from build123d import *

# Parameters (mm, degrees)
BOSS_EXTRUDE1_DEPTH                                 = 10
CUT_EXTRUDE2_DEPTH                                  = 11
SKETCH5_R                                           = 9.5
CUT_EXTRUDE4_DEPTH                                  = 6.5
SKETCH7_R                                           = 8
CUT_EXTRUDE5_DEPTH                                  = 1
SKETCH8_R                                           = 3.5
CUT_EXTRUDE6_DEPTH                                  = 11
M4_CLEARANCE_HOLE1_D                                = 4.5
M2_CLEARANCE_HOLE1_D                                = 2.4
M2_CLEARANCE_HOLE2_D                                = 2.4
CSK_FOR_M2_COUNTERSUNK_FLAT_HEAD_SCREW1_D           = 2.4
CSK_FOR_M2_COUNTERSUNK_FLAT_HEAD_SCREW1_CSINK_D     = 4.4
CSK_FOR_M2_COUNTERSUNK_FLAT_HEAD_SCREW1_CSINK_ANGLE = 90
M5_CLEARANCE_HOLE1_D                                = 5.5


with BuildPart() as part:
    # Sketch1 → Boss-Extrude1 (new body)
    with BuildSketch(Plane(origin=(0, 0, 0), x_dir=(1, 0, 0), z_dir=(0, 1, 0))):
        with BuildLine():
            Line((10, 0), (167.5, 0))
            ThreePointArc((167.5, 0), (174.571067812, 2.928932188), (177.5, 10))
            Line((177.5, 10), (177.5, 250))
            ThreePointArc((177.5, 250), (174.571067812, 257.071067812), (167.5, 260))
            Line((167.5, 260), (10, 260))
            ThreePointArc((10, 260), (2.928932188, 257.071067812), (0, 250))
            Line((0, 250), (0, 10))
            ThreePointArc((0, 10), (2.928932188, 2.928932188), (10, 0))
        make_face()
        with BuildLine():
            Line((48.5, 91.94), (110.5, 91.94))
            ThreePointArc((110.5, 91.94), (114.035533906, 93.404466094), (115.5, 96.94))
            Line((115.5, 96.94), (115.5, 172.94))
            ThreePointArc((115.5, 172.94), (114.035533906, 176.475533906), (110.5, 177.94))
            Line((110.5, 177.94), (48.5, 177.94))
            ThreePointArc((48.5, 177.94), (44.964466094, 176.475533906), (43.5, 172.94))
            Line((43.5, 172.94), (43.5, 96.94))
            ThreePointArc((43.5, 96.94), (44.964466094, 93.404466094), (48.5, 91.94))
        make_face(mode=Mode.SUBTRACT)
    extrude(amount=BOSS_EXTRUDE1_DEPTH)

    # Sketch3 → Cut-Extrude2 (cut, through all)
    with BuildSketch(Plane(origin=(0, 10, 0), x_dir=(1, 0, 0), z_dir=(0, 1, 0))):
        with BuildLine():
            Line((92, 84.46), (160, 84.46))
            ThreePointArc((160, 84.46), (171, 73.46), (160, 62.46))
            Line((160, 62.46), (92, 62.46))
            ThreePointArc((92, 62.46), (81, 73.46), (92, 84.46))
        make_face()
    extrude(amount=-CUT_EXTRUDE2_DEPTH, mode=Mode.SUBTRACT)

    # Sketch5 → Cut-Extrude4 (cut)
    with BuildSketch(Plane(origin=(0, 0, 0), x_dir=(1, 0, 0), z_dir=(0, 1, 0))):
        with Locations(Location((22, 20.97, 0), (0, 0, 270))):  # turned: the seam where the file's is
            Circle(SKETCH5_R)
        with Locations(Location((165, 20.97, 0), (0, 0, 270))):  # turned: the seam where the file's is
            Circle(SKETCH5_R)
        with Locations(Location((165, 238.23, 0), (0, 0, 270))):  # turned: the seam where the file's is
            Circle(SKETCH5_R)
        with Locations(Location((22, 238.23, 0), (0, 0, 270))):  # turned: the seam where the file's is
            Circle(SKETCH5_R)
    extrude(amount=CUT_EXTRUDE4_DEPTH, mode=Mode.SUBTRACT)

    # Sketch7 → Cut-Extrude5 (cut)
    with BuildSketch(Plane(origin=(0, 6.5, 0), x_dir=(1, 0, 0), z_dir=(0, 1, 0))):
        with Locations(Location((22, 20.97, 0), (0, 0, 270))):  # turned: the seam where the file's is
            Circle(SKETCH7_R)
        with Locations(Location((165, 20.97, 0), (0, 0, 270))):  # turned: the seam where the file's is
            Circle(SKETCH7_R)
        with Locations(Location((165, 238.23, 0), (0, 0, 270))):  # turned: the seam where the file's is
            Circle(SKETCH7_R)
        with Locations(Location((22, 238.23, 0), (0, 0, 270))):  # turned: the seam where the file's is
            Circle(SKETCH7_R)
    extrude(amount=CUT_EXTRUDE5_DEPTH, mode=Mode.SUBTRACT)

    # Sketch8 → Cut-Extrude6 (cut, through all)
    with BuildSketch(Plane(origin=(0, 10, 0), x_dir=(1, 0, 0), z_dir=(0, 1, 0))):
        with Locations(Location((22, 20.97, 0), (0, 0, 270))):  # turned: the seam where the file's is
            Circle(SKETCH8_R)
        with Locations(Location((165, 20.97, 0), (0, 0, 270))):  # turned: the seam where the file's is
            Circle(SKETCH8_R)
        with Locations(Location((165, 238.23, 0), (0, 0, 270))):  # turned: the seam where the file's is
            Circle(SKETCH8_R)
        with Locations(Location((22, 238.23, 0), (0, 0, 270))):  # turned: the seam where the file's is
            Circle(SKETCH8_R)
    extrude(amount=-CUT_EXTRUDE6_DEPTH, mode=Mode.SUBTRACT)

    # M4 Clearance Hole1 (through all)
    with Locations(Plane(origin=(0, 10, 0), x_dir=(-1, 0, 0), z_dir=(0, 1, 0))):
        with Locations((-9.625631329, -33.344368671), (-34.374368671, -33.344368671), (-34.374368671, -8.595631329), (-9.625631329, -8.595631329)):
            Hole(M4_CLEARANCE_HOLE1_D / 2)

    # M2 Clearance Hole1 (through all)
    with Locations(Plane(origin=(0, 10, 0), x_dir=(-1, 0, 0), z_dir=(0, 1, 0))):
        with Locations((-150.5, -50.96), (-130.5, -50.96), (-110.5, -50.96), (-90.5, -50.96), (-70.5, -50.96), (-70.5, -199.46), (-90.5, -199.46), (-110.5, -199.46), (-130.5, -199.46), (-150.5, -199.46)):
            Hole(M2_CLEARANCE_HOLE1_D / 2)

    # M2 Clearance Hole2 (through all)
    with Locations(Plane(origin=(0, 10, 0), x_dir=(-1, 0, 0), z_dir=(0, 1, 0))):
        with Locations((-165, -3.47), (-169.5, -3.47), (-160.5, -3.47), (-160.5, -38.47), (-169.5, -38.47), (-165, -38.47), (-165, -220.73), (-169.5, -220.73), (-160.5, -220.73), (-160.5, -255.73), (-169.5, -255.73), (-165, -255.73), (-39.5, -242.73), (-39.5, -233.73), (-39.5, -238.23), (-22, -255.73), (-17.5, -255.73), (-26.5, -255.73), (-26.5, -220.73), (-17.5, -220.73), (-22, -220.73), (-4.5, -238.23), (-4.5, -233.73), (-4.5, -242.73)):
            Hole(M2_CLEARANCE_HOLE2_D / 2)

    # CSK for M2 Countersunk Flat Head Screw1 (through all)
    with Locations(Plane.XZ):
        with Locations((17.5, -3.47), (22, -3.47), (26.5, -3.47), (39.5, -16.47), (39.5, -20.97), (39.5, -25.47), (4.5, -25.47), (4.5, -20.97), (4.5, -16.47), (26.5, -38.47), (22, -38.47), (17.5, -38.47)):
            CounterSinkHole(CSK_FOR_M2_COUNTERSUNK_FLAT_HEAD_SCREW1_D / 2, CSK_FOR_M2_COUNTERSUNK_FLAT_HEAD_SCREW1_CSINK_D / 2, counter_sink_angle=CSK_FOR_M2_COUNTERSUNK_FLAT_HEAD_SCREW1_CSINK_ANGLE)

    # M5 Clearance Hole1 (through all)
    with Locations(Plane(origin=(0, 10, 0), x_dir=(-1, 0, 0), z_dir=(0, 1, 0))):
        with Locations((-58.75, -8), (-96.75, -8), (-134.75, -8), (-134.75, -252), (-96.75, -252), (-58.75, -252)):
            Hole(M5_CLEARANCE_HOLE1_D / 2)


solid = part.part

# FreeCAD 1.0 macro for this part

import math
import FreeCAD as App
import Part
import Sketcher

V = App.Vector

doc = App.newDocument("Part")
params = doc.addObject("Spreadsheet::Sheet", "Params")
for row, (alias, value) in enumerate([
    ("sketch1_radius", "10 mm"),
    ("sketch1_radius2", "5 mm"),
    ("sketch1_width", "62 mm"),
    ("sketch1_height", "240 mm"),
    ("sketch1_height2", "76 mm"),
    ("pad1_length", "10 mm"),
    ("sketch2_radius", "11 mm"),
    ("sketch2_width", "68 mm"),
    ("sketch3_diameter", "19 mm"),
    ("pocket2_length", "6.5 mm"),
    ("sketch4_diameter", "16 mm"),
    ("pocket3_length", "1 mm"),
    ("sketch5_diameter", "7 mm"),
    ("sketch6_diameter", "4.5 mm"),
    ("hole_diameter", "4.5 mm"),
    ("sketch7_diameter", "2.4 mm"),
    ("hole2_diameter", "2.4 mm"),
    ("sketch8_diameter", "2.4 mm"),
    ("hole3_diameter", "2.4 mm"),
    ("sketch9_diameter", "2.4 mm"),
    ("hole4_diameter", "2.4 mm"),
    ("hole4_csink_diameter", "4.4 mm"),
    ("sketch10_diameter", "5.5 mm"),
    ("hole5_diameter", "5.5 mm"),
], start=1):
    params.set(f"A{row}", alias)
    params.set(f"B{row}", "=" + value)
    params.setAlias(f"B{row}", alias)

body = doc.addObject("PartDesign::Body", "Body")

# Sketch on XZ plane
sketch1 = body.newObject("Sketcher::SketchObject", "Sketch")
sketch1.AttachmentSupport = (doc.getObject("XZ_Plane"), [""])
sketch1.MapMode = "FlatFace"
sketch1.addGeometry(Part.LineSegment(V(10, 0, 0), V(167.5, 0, 0)), False)
sketch1.addGeometry(Part.ArcOfCircle(Part.Circle(V(167.5, -10, 0), V(0, 0, 1), 10), math.radians(0), math.radians(90)), False)
sketch1.addGeometry(Part.LineSegment(V(177.5, -10, 0), V(177.5, -250, 0)), False)
sketch1.addGeometry(Part.ArcOfCircle(Part.Circle(V(167.5, -250, 0), V(0, 0, 1), 10), math.radians(-90), math.radians(0)), False)
sketch1.addGeometry(Part.LineSegment(V(167.5, -260, 0), V(10, -260, 0)), False)
sketch1.addGeometry(Part.ArcOfCircle(Part.Circle(V(10, -250, 0), V(0, 0, 1), 10), math.radians(180), math.radians(270)), False)
sketch1.addGeometry(Part.LineSegment(V(0, -250, 0), V(0, -10, 0)), False)
sketch1.addGeometry(Part.ArcOfCircle(Part.Circle(V(10, -10, 0), V(0, 0, 1), 10), math.radians(90), math.radians(180)), False)
sketch1.addGeometry(Part.LineSegment(V(110.5, -91.94, 0), V(48.5, -91.94, 0)), False)
sketch1.addGeometry(Part.ArcOfCircle(Part.Circle(V(48.5, -96.94, 0), V(0, 0, 1), 5), math.radians(90), math.radians(180)), False)
sketch1.addGeometry(Part.LineSegment(V(43.5, -96.94, 0), V(43.5, -172.94, 0)), False)
sketch1.addGeometry(Part.ArcOfCircle(Part.Circle(V(48.5, -172.94, 0), V(0, 0, 1), 5), math.radians(180), math.radians(270)), False)
sketch1.addGeometry(Part.LineSegment(V(48.5, -177.94, 0), V(110.5, -177.94, 0)), False)
sketch1.addGeometry(Part.ArcOfCircle(Part.Circle(V(110.5, -172.94, 0), V(0, 0, 1), 5), math.radians(-90), math.radians(0)), False)
sketch1.addGeometry(Part.LineSegment(V(115.5, -172.94, 0), V(115.5, -96.94, 0)), False)
sketch1.addGeometry(Part.ArcOfCircle(Part.Circle(V(110.5, -96.94, 0), V(0, 0, 1), 5), math.radians(0), math.radians(90)), False)
sketch1.addConstraint(Sketcher.Constraint("Tangent", 0, 2, 1, 2))
sketch1.addConstraint(Sketcher.Constraint("Tangent", 1, 1, 2, 1))
sketch1.addConstraint(Sketcher.Constraint("Tangent", 2, 2, 3, 2))
sketch1.addConstraint(Sketcher.Constraint("Tangent", 3, 1, 4, 1))
sketch1.addConstraint(Sketcher.Constraint("Tangent", 4, 2, 5, 2))
sketch1.addConstraint(Sketcher.Constraint("Tangent", 5, 1, 6, 1))
sketch1.addConstraint(Sketcher.Constraint("Tangent", 6, 2, 7, 2))
sketch1.addConstraint(Sketcher.Constraint("Tangent", 7, 1, 0, 1))
sketch1.addConstraint(Sketcher.Constraint("Tangent", 8, 2, 9, 1))
sketch1.addConstraint(Sketcher.Constraint("Tangent", 9, 2, 10, 1))
sketch1.addConstraint(Sketcher.Constraint("Tangent", 10, 2, 11, 1))
sketch1.addConstraint(Sketcher.Constraint("Tangent", 11, 2, 12, 1))
sketch1.addConstraint(Sketcher.Constraint("Tangent", 12, 2, 13, 1))
sketch1.addConstraint(Sketcher.Constraint("Tangent", 13, 2, 14, 1))
sketch1.addConstraint(Sketcher.Constraint("Tangent", 14, 2, 15, 1))
sketch1.addConstraint(Sketcher.Constraint("Tangent", 15, 2, 8, 1))
sketch1.addConstraint(Sketcher.Constraint("Horizontal", 0))
sketch1.addConstraint(Sketcher.Constraint("Vertical", 2))
sketch1.addConstraint(Sketcher.Constraint("Horizontal", 4))
sketch1.addConstraint(Sketcher.Constraint("Vertical", 6))
sketch1.addConstraint(Sketcher.Constraint("Horizontal", 8))
sketch1.addConstraint(Sketcher.Constraint("Vertical", 10))
sketch1.addConstraint(Sketcher.Constraint("Horizontal", 12))
sketch1.addConstraint(Sketcher.Constraint("Vertical", 14))
sketch1.addConstraint(Sketcher.Constraint("Equal", 1, 3))
sketch1.addConstraint(Sketcher.Constraint("Equal", 3, 5))
sketch1.addConstraint(Sketcher.Constraint("Equal", 5, 7))
sketch1.addConstraint(Sketcher.Constraint("Equal", 9, 11))
sketch1.addConstraint(Sketcher.Constraint("Equal", 11, 13))
sketch1.addConstraint(Sketcher.Constraint("Equal", 13, 15))
sketch1.addConstraint(Sketcher.Constraint("PointOnObject", 0, 2, -1))
sketch1.addConstraint(Sketcher.Constraint("PointOnObject", 5, 1, -2))
sketch1.addConstraint(Sketcher.Constraint("Radius", 1, 10.0))
sketch1.addConstraint(Sketcher.Constraint("Radius", 9, 5.0))
sketch1.addConstraint(Sketcher.Constraint("DistanceX", 8, 2, 8, 1, 62.0))
sketch1.addConstraint(Sketcher.Constraint("DistanceY", 2, 2, 2, 1, 240.0))
sketch1.addConstraint(Sketcher.Constraint("DistanceY", 10, 2, 10, 1, 76.0))
sketch1.addConstraint(Sketcher.Constraint("DistanceX", 0, 1, 0, 2, 157.5))
sketch1.addConstraint(Sketcher.Constraint("DistanceX", 9, 3, 1, 3, 119.0))
sketch1.addConstraint(Sketcher.Constraint("DistanceY", 9, 3, -1, 1, 96.94))
sketch1.setExpression("Constraints[32]", "Params.sketch1_radius")
sketch1.setExpression("Constraints[33]", "Params.sketch1_radius2")
sketch1.setExpression("Constraints[34]", "Params.sketch1_width")
sketch1.setExpression("Constraints[35]", "Params.sketch1_height")
sketch1.setExpression("Constraints[36]", "Params.sketch1_height2")
pad1 = body.newObject("PartDesign::Pad", "Pad")
pad1.Profile = sketch1
pad1.setExpression("Length", "Params.pad1_length")
pad1.Reversed = True

# Sketch on XZ plane
sketch2 = body.newObject("Sketcher::SketchObject", "Sketch001")
sketch2.AttachmentSupport = (doc.getObject("XZ_Plane"), [""])
sketch2.MapMode = "FlatFace"
sketch2.AttachmentOffset = App.Placement(V(0, 0, -10), App.Rotation())
sketch2.addGeometry(Part.LineSegment(V(160, -84.46, 0), V(92, -84.46, 0)), False)
sketch2.addGeometry(Part.ArcOfCircle(Part.Circle(V(92, -73.46, 0), V(0, 0, 1), 11), math.radians(90), math.radians(270)), False)
sketch2.addGeometry(Part.LineSegment(V(92, -62.46, 0), V(160, -62.46, 0)), False)
sketch2.addGeometry(Part.ArcOfCircle(Part.Circle(V(160, -73.46, 0), V(0, 0, 1), 11), math.radians(-90), math.radians(90)), False)
sketch2.addConstraint(Sketcher.Constraint("Tangent", 0, 2, 1, 2))
sketch2.addConstraint(Sketcher.Constraint("Tangent", 1, 1, 2, 1))
sketch2.addConstraint(Sketcher.Constraint("Tangent", 2, 2, 3, 2))
sketch2.addConstraint(Sketcher.Constraint("Tangent", 3, 1, 0, 1))
sketch2.addConstraint(Sketcher.Constraint("Horizontal", 0))
sketch2.addConstraint(Sketcher.Constraint("Horizontal", 2))
sketch2.addConstraint(Sketcher.Constraint("Radius", 1, 11.0))
sketch2.addConstraint(Sketcher.Constraint("DistanceX", 0, 2, 0, 1, 68.0))
sketch2.addConstraint(Sketcher.Constraint("DistanceX", -1, 1, 1, 3, 92.0))
sketch2.addConstraint(Sketcher.Constraint("DistanceY", 1, 3, -1, 1, 73.46))
sketch2.setExpression("Constraints[6]", "Params.sketch2_radius")
sketch2.setExpression("Constraints[7]", "Params.sketch2_width")
pocket1 = body.newObject("PartDesign::Pocket", "Pocket")
pocket1.Profile = sketch2
pocket1.Type = "ThroughAll"
pocket1.Reversed = True

# Sketch on XZ plane
sketch3 = body.newObject("Sketcher::SketchObject", "Sketch002")
sketch3.AttachmentSupport = (doc.getObject("XZ_Plane"), [""])
sketch3.MapMode = "FlatFace"
sketch3.addGeometry(Part.Circle(V(22, -20.97, 0), V(0, 0, 1), 9.5), False)
sketch3.addGeometry(Part.Circle(V(165, -20.97, 0), V(0, 0, 1), 9.5), False)
sketch3.addGeometry(Part.Circle(V(165, -238.23, 0), V(0, 0, 1), 9.5), False)
sketch3.addGeometry(Part.Circle(V(22, -238.23, 0), V(0, 0, 1), 9.5), False)
sketch3.addConstraint(Sketcher.Constraint("Equal", 0, 1))
sketch3.addConstraint(Sketcher.Constraint("Equal", 1, 2))
sketch3.addConstraint(Sketcher.Constraint("Equal", 2, 3))
sketch3.addConstraint(Sketcher.Constraint("Horizontal", 0, 3, 1, 3))
sketch3.addConstraint(Sketcher.Constraint("Horizontal", 2, 3, 3, 3))
sketch3.addConstraint(Sketcher.Constraint("Vertical", 1, 3, 2, 3))
sketch3.addConstraint(Sketcher.Constraint("Vertical", 0, 3, 3, 3))
sketch3.addConstraint(Sketcher.Constraint("Diameter", 0, 19.0))
sketch3.addConstraint(Sketcher.Constraint("DistanceX", -1, 1, 0, 3, 22.0))
sketch3.addConstraint(Sketcher.Constraint("DistanceX", -1, 1, 1, 3, 165.0))
sketch3.addConstraint(Sketcher.Constraint("DistanceY", 0, 3, -1, 1, 20.97))
sketch3.addConstraint(Sketcher.Constraint("DistanceY", 2, 3, -1, 1, 238.23))
sketch3.setExpression("Constraints[7]", "Params.sketch3_diameter")
pocket2 = body.newObject("PartDesign::Pocket", "Pocket001")
pocket2.Profile = sketch3
pocket2.setExpression("Length", "Params.pocket2_length")

# Sketch on XZ plane
sketch4 = body.newObject("Sketcher::SketchObject", "Sketch003")
sketch4.AttachmentSupport = (doc.getObject("XZ_Plane"), [""])
sketch4.MapMode = "FlatFace"
sketch4.AttachmentOffset = App.Placement(V(0, 0, -6.5), App.Rotation())
sketch4.addGeometry(Part.Circle(V(22, -20.97, 0), V(0, 0, 1), 8), False)
sketch4.addGeometry(Part.Circle(V(165, -20.97, 0), V(0, 0, 1), 8), False)
sketch4.addGeometry(Part.Circle(V(165, -238.23, 0), V(0, 0, 1), 8), False)
sketch4.addGeometry(Part.Circle(V(22, -238.23, 0), V(0, 0, 1), 8), False)
sketch4.addConstraint(Sketcher.Constraint("Equal", 0, 1))
sketch4.addConstraint(Sketcher.Constraint("Equal", 1, 2))
sketch4.addConstraint(Sketcher.Constraint("Equal", 2, 3))
sketch4.addConstraint(Sketcher.Constraint("Horizontal", 0, 3, 1, 3))
sketch4.addConstraint(Sketcher.Constraint("Horizontal", 2, 3, 3, 3))
sketch4.addConstraint(Sketcher.Constraint("Vertical", 1, 3, 2, 3))
sketch4.addConstraint(Sketcher.Constraint("Vertical", 0, 3, 3, 3))
sketch4.addConstraint(Sketcher.Constraint("Diameter", 0, 16.0))
sketch4.addConstraint(Sketcher.Constraint("DistanceX", -1, 1, 0, 3, 22.0))
sketch4.addConstraint(Sketcher.Constraint("DistanceX", -1, 1, 1, 3, 165.0))
sketch4.addConstraint(Sketcher.Constraint("DistanceY", 0, 3, -1, 1, 20.97))
sketch4.addConstraint(Sketcher.Constraint("DistanceY", 2, 3, -1, 1, 238.23))
sketch4.setExpression("Constraints[7]", "Params.sketch4_diameter")
pocket3 = body.newObject("PartDesign::Pocket", "Pocket002")
pocket3.Profile = sketch4
pocket3.setExpression("Length", "Params.pocket3_length")

# Sketch on XZ plane
sketch5 = body.newObject("Sketcher::SketchObject", "Sketch004")
sketch5.AttachmentSupport = (doc.getObject("XZ_Plane"), [""])
sketch5.MapMode = "FlatFace"
sketch5.AttachmentOffset = App.Placement(V(0, 0, -10), App.Rotation())
sketch5.addGeometry(Part.Circle(V(22, -20.97, 0), V(0, 0, 1), 3.5), False)
sketch5.addGeometry(Part.Circle(V(165, -20.97, 0), V(0, 0, 1), 3.5), False)
sketch5.addGeometry(Part.Circle(V(165, -238.23, 0), V(0, 0, 1), 3.5), False)
sketch5.addGeometry(Part.Circle(V(22, -238.23, 0), V(0, 0, 1), 3.5), False)
sketch5.addConstraint(Sketcher.Constraint("Equal", 0, 1))
sketch5.addConstraint(Sketcher.Constraint("Equal", 1, 2))
sketch5.addConstraint(Sketcher.Constraint("Equal", 2, 3))
sketch5.addConstraint(Sketcher.Constraint("Horizontal", 0, 3, 1, 3))
sketch5.addConstraint(Sketcher.Constraint("Horizontal", 2, 3, 3, 3))
sketch5.addConstraint(Sketcher.Constraint("Vertical", 1, 3, 2, 3))
sketch5.addConstraint(Sketcher.Constraint("Vertical", 0, 3, 3, 3))
sketch5.addConstraint(Sketcher.Constraint("Diameter", 0, 7.0))
sketch5.addConstraint(Sketcher.Constraint("DistanceX", -1, 1, 0, 3, 22.0))
sketch5.addConstraint(Sketcher.Constraint("DistanceX", -1, 1, 1, 3, 165.0))
sketch5.addConstraint(Sketcher.Constraint("DistanceY", 0, 3, -1, 1, 20.97))
sketch5.addConstraint(Sketcher.Constraint("DistanceY", 2, 3, -1, 1, 238.23))
sketch5.setExpression("Constraints[7]", "Params.sketch5_diameter")
pocket4 = body.newObject("PartDesign::Pocket", "Pocket003")
pocket4.Profile = sketch5
pocket4.Type = "ThroughAll"
pocket4.Reversed = True

# Sketch on XZ plane
sketch6 = body.newObject("Sketcher::SketchObject", "Sketch005")
sketch6.AttachmentSupport = (doc.getObject("XZ_Plane"), [""])
sketch6.MapMode = "FlatFace"
sketch6.AttachmentOffset = App.Placement(V(0, 0, -10), App.Rotation())
sketch6.addGeometry(Part.Circle(V(9.625631, -33.344369, 0), V(0, 0, 1), 2.25), False)
sketch6.addGeometry(Part.Circle(V(34.374369, -33.344369, 0), V(0, 0, 1), 2.25), False)
sketch6.addGeometry(Part.Circle(V(34.374369, -8.595631, 0), V(0, 0, 1), 2.25), False)
sketch6.addGeometry(Part.Circle(V(9.625631, -8.595631, 0), V(0, 0, 1), 2.25), False)
sketch6.addConstraint(Sketcher.Constraint("Equal", 0, 1))
sketch6.addConstraint(Sketcher.Constraint("Equal", 1, 2))
sketch6.addConstraint(Sketcher.Constraint("Equal", 2, 3))
sketch6.addConstraint(Sketcher.Constraint("Horizontal", 0, 3, 1, 3))
sketch6.addConstraint(Sketcher.Constraint("Horizontal", 2, 3, 3, 3))
sketch6.addConstraint(Sketcher.Constraint("Vertical", 1, 3, 2, 3))
sketch6.addConstraint(Sketcher.Constraint("Vertical", 0, 3, 3, 3))
sketch6.addConstraint(Sketcher.Constraint("Diameter", 0, 4.5))
sketch6.addConstraint(Sketcher.Constraint("DistanceX", -1, 1, 0, 3, 9.625631))
sketch6.addConstraint(Sketcher.Constraint("DistanceY", 0, 3, -1, 1, 33.344369))
sketch6.addConstraint(Sketcher.Constraint("DistanceX", -1, 1, 1, 3, 34.374369))
sketch6.addConstraint(Sketcher.Constraint("DistanceY", 2, 3, -1, 1, 8.595631))
sketch6.setExpression("Constraints[7]", "Params.sketch6_diameter")
doc.recompute()
hole = body.newObject("PartDesign::Hole", "Hole")
hole.Profile = sketch6
hole.ThreadType = "None"
hole.setExpression("Diameter", "Params.hole_diameter")
hole.DepthType = "ThroughAll"
hole.Reversed = True

# Sketch on XZ plane
sketch7 = body.newObject("Sketcher::SketchObject", "Sketch006")
sketch7.AttachmentSupport = (doc.getObject("XZ_Plane"), [""])
sketch7.MapMode = "FlatFace"
sketch7.AttachmentOffset = App.Placement(V(0, 0, -10), App.Rotation())
sketch7.addGeometry(Part.Circle(V(150.5, -50.96, 0), V(0, 0, 1), 1.2), False)
sketch7.addGeometry(Part.Circle(V(130.5, -50.96, 0), V(0, 0, 1), 1.2), False)
sketch7.addGeometry(Part.Circle(V(110.5, -50.96, 0), V(0, 0, 1), 1.2), False)
sketch7.addGeometry(Part.Circle(V(90.5, -50.96, 0), V(0, 0, 1), 1.2), False)
sketch7.addGeometry(Part.Circle(V(70.5, -50.96, 0), V(0, 0, 1), 1.2), False)
sketch7.addGeometry(Part.Circle(V(70.5, -199.46, 0), V(0, 0, 1), 1.2), False)
sketch7.addGeometry(Part.Circle(V(90.5, -199.46, 0), V(0, 0, 1), 1.2), False)
sketch7.addGeometry(Part.Circle(V(110.5, -199.46, 0), V(0, 0, 1), 1.2), False)
sketch7.addGeometry(Part.Circle(V(130.5, -199.46, 0), V(0, 0, 1), 1.2), False)
sketch7.addGeometry(Part.Circle(V(150.5, -199.46, 0), V(0, 0, 1), 1.2), False)
sketch7.addConstraint(Sketcher.Constraint("Equal", 0, 1))
sketch7.addConstraint(Sketcher.Constraint("Equal", 1, 2))
sketch7.addConstraint(Sketcher.Constraint("Equal", 2, 3))
sketch7.addConstraint(Sketcher.Constraint("Equal", 3, 4))
sketch7.addConstraint(Sketcher.Constraint("Equal", 4, 5))
sketch7.addConstraint(Sketcher.Constraint("Equal", 5, 6))
sketch7.addConstraint(Sketcher.Constraint("Equal", 6, 7))
sketch7.addConstraint(Sketcher.Constraint("Equal", 7, 8))
sketch7.addConstraint(Sketcher.Constraint("Equal", 8, 9))
sketch7.addConstraint(Sketcher.Constraint("Horizontal", 0, 3, 1, 3))
sketch7.addConstraint(Sketcher.Constraint("Horizontal", 1, 3, 2, 3))
sketch7.addConstraint(Sketcher.Constraint("Horizontal", 2, 3, 3, 3))
sketch7.addConstraint(Sketcher.Constraint("Horizontal", 3, 3, 4, 3))
sketch7.addConstraint(Sketcher.Constraint("Horizontal", 5, 3, 6, 3))
sketch7.addConstraint(Sketcher.Constraint("Horizontal", 6, 3, 7, 3))
sketch7.addConstraint(Sketcher.Constraint("Horizontal", 7, 3, 8, 3))
sketch7.addConstraint(Sketcher.Constraint("Horizontal", 8, 3, 9, 3))
sketch7.addConstraint(Sketcher.Constraint("Vertical", 4, 3, 5, 3))
sketch7.addConstraint(Sketcher.Constraint("Vertical", 3, 3, 6, 3))
sketch7.addConstraint(Sketcher.Constraint("Vertical", 2, 3, 7, 3))
sketch7.addConstraint(Sketcher.Constraint("Vertical", 1, 3, 8, 3))
sketch7.addConstraint(Sketcher.Constraint("Vertical", 0, 3, 9, 3))
sketch7.addConstraint(Sketcher.Constraint("Diameter", 0, 2.4))
sketch7.addConstraint(Sketcher.Constraint("DistanceX", 1, 3, 0, 3, 20.0))
sketch7.addConstraint(Sketcher.Constraint("DistanceX", 2, 3, 1, 3, 20.0))
sketch7.addConstraint(Sketcher.Constraint("DistanceX", 3, 3, 2, 3, 20.0))
sketch7.addConstraint(Sketcher.Constraint("DistanceX", 4, 3, 3, 3, 20.0))
sketch7.addConstraint(Sketcher.Constraint("DistanceX", -1, 1, 0, 3, 150.5))
sketch7.addConstraint(Sketcher.Constraint("DistanceY", 5, 3, 4, 3, 148.5))
sketch7.addConstraint(Sketcher.Constraint("DistanceY", 0, 3, -1, 1, 50.96))
sketch7.setExpression("Constraints[22]", "Params.sketch7_diameter")
doc.recompute()
hole2 = body.newObject("PartDesign::Hole", "Hole001")
hole2.Profile = sketch7
hole2.ThreadType = "None"
hole2.setExpression("Diameter", "Params.hole2_diameter")
hole2.DepthType = "ThroughAll"
hole2.Reversed = True

# Sketch on XZ plane
sketch8 = body.newObject("Sketcher::SketchObject", "Sketch007")
sketch8.AttachmentSupport = (doc.getObject("XZ_Plane"), [""])
sketch8.MapMode = "FlatFace"
sketch8.AttachmentOffset = App.Placement(V(0, 0, -10), App.Rotation())
sketch8.addGeometry(Part.Circle(V(165, -3.47, 0), V(0, 0, 1), 1.2), False)
sketch8.addGeometry(Part.Circle(V(169.5, -3.47, 0), V(0, 0, 1), 1.2), False)
sketch8.addGeometry(Part.Circle(V(160.5, -3.47, 0), V(0, 0, 1), 1.2), False)
sketch8.addGeometry(Part.Circle(V(160.5, -38.47, 0), V(0, 0, 1), 1.2), False)
sketch8.addGeometry(Part.Circle(V(169.5, -38.47, 0), V(0, 0, 1), 1.2), False)
sketch8.addGeometry(Part.Circle(V(165, -38.47, 0), V(0, 0, 1), 1.2), False)
sketch8.addGeometry(Part.Circle(V(165, -220.73, 0), V(0, 0, 1), 1.2), False)
sketch8.addGeometry(Part.Circle(V(169.5, -220.73, 0), V(0, 0, 1), 1.2), False)
sketch8.addGeometry(Part.Circle(V(160.5, -220.73, 0), V(0, 0, 1), 1.2), False)
sketch8.addGeometry(Part.Circle(V(160.5, -255.73, 0), V(0, 0, 1), 1.2), False)
sketch8.addGeometry(Part.Circle(V(169.5, -255.73, 0), V(0, 0, 1), 1.2), False)
sketch8.addGeometry(Part.Circle(V(165, -255.73, 0), V(0, 0, 1), 1.2), False)
sketch8.addGeometry(Part.Circle(V(39.5, -242.73, 0), V(0, 0, 1), 1.2), False)
sketch8.addGeometry(Part.Circle(V(39.5, -233.73, 0), V(0, 0, 1), 1.2), False)
sketch8.addGeometry(Part.Circle(V(39.5, -238.23, 0), V(0, 0, 1), 1.2), False)
sketch8.addGeometry(Part.Circle(V(22, -255.73, 0), V(0, 0, 1), 1.2), False)
sketch8.addGeometry(Part.Circle(V(17.5, -255.73, 0), V(0, 0, 1), 1.2), False)
sketch8.addGeometry(Part.Circle(V(26.5, -255.73, 0), V(0, 0, 1), 1.2), False)
sketch8.addGeometry(Part.Circle(V(26.5, -220.73, 0), V(0, 0, 1), 1.2), False)
sketch8.addGeometry(Part.Circle(V(17.5, -220.73, 0), V(0, 0, 1), 1.2), False)
sketch8.addGeometry(Part.Circle(V(22, -220.73, 0), V(0, 0, 1), 1.2), False)
sketch8.addGeometry(Part.Circle(V(4.5, -238.23, 0), V(0, 0, 1), 1.2), False)
sketch8.addGeometry(Part.Circle(V(4.5, -233.73, 0), V(0, 0, 1), 1.2), False)
sketch8.addGeometry(Part.Circle(V(4.5, -242.73, 0), V(0, 0, 1), 1.2), False)
sketch8.addConstraint(Sketcher.Constraint("Equal", 0, 1))
sketch8.addConstraint(Sketcher.Constraint("Equal", 1, 2))
sketch8.addConstraint(Sketcher.Constraint("Equal", 2, 3))
sketch8.addConstraint(Sketcher.Constraint("Equal", 3, 4))
sketch8.addConstraint(Sketcher.Constraint("Equal", 4, 5))
sketch8.addConstraint(Sketcher.Constraint("Equal", 5, 6))
sketch8.addConstraint(Sketcher.Constraint("Equal", 6, 7))
sketch8.addConstraint(Sketcher.Constraint("Equal", 7, 8))
sketch8.addConstraint(Sketcher.Constraint("Equal", 8, 9))
sketch8.addConstraint(Sketcher.Constraint("Equal", 9, 10))
sketch8.addConstraint(Sketcher.Constraint("Equal", 10, 11))
sketch8.addConstraint(Sketcher.Constraint("Equal", 11, 12))
sketch8.addConstraint(Sketcher.Constraint("Equal", 12, 13))
sketch8.addConstraint(Sketcher.Constraint("Equal", 13, 14))
sketch8.addConstraint(Sketcher.Constraint("Equal", 14, 15))
sketch8.addConstraint(Sketcher.Constraint("Equal", 15, 16))
sketch8.addConstraint(Sketcher.Constraint("Equal", 16, 17))
sketch8.addConstraint(Sketcher.Constraint("Equal", 17, 18))
sketch8.addConstraint(Sketcher.Constraint("Equal", 18, 19))
sketch8.addConstraint(Sketcher.Constraint("Equal", 19, 20))
sketch8.addConstraint(Sketcher.Constraint("Equal", 20, 21))
sketch8.addConstraint(Sketcher.Constraint("Equal", 21, 22))
sketch8.addConstraint(Sketcher.Constraint("Equal", 22, 23))
sketch8.addConstraint(Sketcher.Constraint("Horizontal", 0, 3, 1, 3))
sketch8.addConstraint(Sketcher.Constraint("Horizontal", 1, 3, 2, 3))
sketch8.addConstraint(Sketcher.Constraint("Horizontal", 3, 3, 4, 3))
sketch8.addConstraint(Sketcher.Constraint("Horizontal", 4, 3, 5, 3))
sketch8.addConstraint(Sketcher.Constraint("Horizontal", 6, 3, 7, 3))
sketch8.addConstraint(Sketcher.Constraint("Horizontal", 7, 3, 8, 3))
sketch8.addConstraint(Sketcher.Constraint("Horizontal", 9, 3, 10, 3))
sketch8.addConstraint(Sketcher.Constraint("Horizontal", 10, 3, 11, 3))
sketch8.addConstraint(Sketcher.Constraint("Horizontal", 11, 3, 15, 3))
sketch8.addConstraint(Sketcher.Constraint("Horizontal", 15, 3, 16, 3))
sketch8.addConstraint(Sketcher.Constraint("Horizontal", 16, 3, 17, 3))
sketch8.addConstraint(Sketcher.Constraint("Horizontal", 8, 3, 18, 3))
sketch8.addConstraint(Sketcher.Constraint("Horizontal", 18, 3, 19, 3))
sketch8.addConstraint(Sketcher.Constraint("Horizontal", 19, 3, 20, 3))
sketch8.addConstraint(Sketcher.Constraint("Horizontal", 14, 3, 21, 3))
sketch8.addConstraint(Sketcher.Constraint("Horizontal", 13, 3, 22, 3))
sketch8.addConstraint(Sketcher.Constraint("Horizontal", 12, 3, 23, 3))
sketch8.addConstraint(Sketcher.Constraint("Vertical", 2, 3, 3, 3))
sketch8.addConstraint(Sketcher.Constraint("Vertical", 1, 3, 4, 3))
sketch8.addConstraint(Sketcher.Constraint("Vertical", 0, 3, 5, 3))
sketch8.addConstraint(Sketcher.Constraint("Vertical", 5, 3, 6, 3))
sketch8.addConstraint(Sketcher.Constraint("Vertical", 4, 3, 7, 3))
sketch8.addConstraint(Sketcher.Constraint("Vertical", 3, 3, 8, 3))
sketch8.addConstraint(Sketcher.Constraint("Vertical", 8, 3, 9, 3))
sketch8.addConstraint(Sketcher.Constraint("Vertical", 7, 3, 10, 3))
sketch8.addConstraint(Sketcher.Constraint("Vertical", 6, 3, 11, 3))
sketch8.addConstraint(Sketcher.Constraint("Vertical", 12, 3, 13, 3))
sketch8.addConstraint(Sketcher.Constraint("Vertical", 13, 3, 14, 3))
sketch8.addConstraint(Sketcher.Constraint("Vertical", 17, 3, 18, 3))
sketch8.addConstraint(Sketcher.Constraint("Vertical", 16, 3, 19, 3))
sketch8.addConstraint(Sketcher.Constraint("Vertical", 15, 3, 20, 3))
sketch8.addConstraint(Sketcher.Constraint("Vertical", 21, 3, 22, 3))
sketch8.addConstraint(Sketcher.Constraint("Vertical", 22, 3, 23, 3))
sketch8.addConstraint(Sketcher.Constraint("Diameter", 0, 2.4))
sketch8.addConstraint(Sketcher.Constraint("DistanceX", -1, 1, 0, 3, 165.0))
sketch8.addConstraint(Sketcher.Constraint("DistanceX", -1, 1, 15, 3, 22.0))
sketch8.addConstraint(Sketcher.Constraint("DistanceX", 2, 3, 1, 3, 9.0))
sketch8.addConstraint(Sketcher.Constraint("DistanceY", 3, 3, 2, 3, 35.0))
sketch8.addConstraint(Sketcher.Constraint("DistanceY", 9, 3, 8, 3, 35.0))
sketch8.addConstraint(Sketcher.Constraint("DistanceX", 12, 3, 9, 3, 121.0))
sketch8.addConstraint(Sketcher.Constraint("DistanceY", 9, 3, 12, 3, 13.0))
sketch8.addConstraint(Sketcher.Constraint("DistanceY", 12, 3, 13, 3, 9.0))
sketch8.addConstraint(Sketcher.Constraint("DistanceX", 16, 3, 12, 3, 22.0))
sketch8.addConstraint(Sketcher.Constraint("DistanceX", 16, 3, 17, 3, 9.0))
sketch8.addConstraint(Sketcher.Constraint("DistanceX", 21, 3, 16, 3, 13.0))
sketch8.addConstraint(Sketcher.Constraint("DistanceX", -1, 1, 1, 3, 169.5))
sketch8.addConstraint(Sketcher.Constraint("DistanceY", 12, 3, 14, 3, 4.5))
sketch8.addConstraint(Sketcher.Constraint("DistanceY", 0, 3, -1, 1, 3.47))
sketch8.addConstraint(Sketcher.Constraint("DistanceY", 6, 3, -1, 1, 220.73))
sketch8.setExpression("Constraints[56]", "Params.sketch8_diameter")
doc.recompute()
hole3 = body.newObject("PartDesign::Hole", "Hole002")
hole3.Profile = sketch8
hole3.ThreadType = "None"
hole3.setExpression("Diameter", "Params.hole3_diameter")
hole3.DepthType = "ThroughAll"
hole3.Reversed = True

# Sketch on XZ plane
sketch9 = body.newObject("Sketcher::SketchObject", "Sketch008")
sketch9.AttachmentSupport = (doc.getObject("XZ_Plane"), [""])
sketch9.MapMode = "FlatFace"
sketch9.addGeometry(Part.Circle(V(17.5, -3.47, 0), V(0, 0, 1), 1.2), False)
sketch9.addGeometry(Part.Circle(V(22, -3.47, 0), V(0, 0, 1), 1.2), False)
sketch9.addGeometry(Part.Circle(V(26.5, -3.47, 0), V(0, 0, 1), 1.2), False)
sketch9.addGeometry(Part.Circle(V(39.5, -16.47, 0), V(0, 0, 1), 1.2), False)
sketch9.addGeometry(Part.Circle(V(39.5, -20.97, 0), V(0, 0, 1), 1.2), False)
sketch9.addGeometry(Part.Circle(V(39.5, -25.47, 0), V(0, 0, 1), 1.2), False)
sketch9.addGeometry(Part.Circle(V(4.5, -25.47, 0), V(0, 0, 1), 1.2), False)
sketch9.addGeometry(Part.Circle(V(4.5, -20.97, 0), V(0, 0, 1), 1.2), False)
sketch9.addGeometry(Part.Circle(V(4.5, -16.47, 0), V(0, 0, 1), 1.2), False)
sketch9.addGeometry(Part.Circle(V(26.5, -38.47, 0), V(0, 0, 1), 1.2), False)
sketch9.addGeometry(Part.Circle(V(22, -38.47, 0), V(0, 0, 1), 1.2), False)
sketch9.addGeometry(Part.Circle(V(17.5, -38.47, 0), V(0, 0, 1), 1.2), False)
sketch9.addConstraint(Sketcher.Constraint("Equal", 0, 1))
sketch9.addConstraint(Sketcher.Constraint("Equal", 1, 2))
sketch9.addConstraint(Sketcher.Constraint("Equal", 2, 3))
sketch9.addConstraint(Sketcher.Constraint("Equal", 3, 4))
sketch9.addConstraint(Sketcher.Constraint("Equal", 4, 5))
sketch9.addConstraint(Sketcher.Constraint("Equal", 5, 6))
sketch9.addConstraint(Sketcher.Constraint("Equal", 6, 7))
sketch9.addConstraint(Sketcher.Constraint("Equal", 7, 8))
sketch9.addConstraint(Sketcher.Constraint("Equal", 8, 9))
sketch9.addConstraint(Sketcher.Constraint("Equal", 9, 10))
sketch9.addConstraint(Sketcher.Constraint("Equal", 10, 11))
sketch9.addConstraint(Sketcher.Constraint("Horizontal", 0, 3, 1, 3))
sketch9.addConstraint(Sketcher.Constraint("Horizontal", 1, 3, 2, 3))
sketch9.addConstraint(Sketcher.Constraint("Horizontal", 5, 3, 6, 3))
sketch9.addConstraint(Sketcher.Constraint("Horizontal", 4, 3, 7, 3))
sketch9.addConstraint(Sketcher.Constraint("Horizontal", 3, 3, 8, 3))
sketch9.addConstraint(Sketcher.Constraint("Horizontal", 9, 3, 10, 3))
sketch9.addConstraint(Sketcher.Constraint("Horizontal", 10, 3, 11, 3))
sketch9.addConstraint(Sketcher.Constraint("Vertical", 3, 3, 4, 3))
sketch9.addConstraint(Sketcher.Constraint("Vertical", 4, 3, 5, 3))
sketch9.addConstraint(Sketcher.Constraint("Vertical", 6, 3, 7, 3))
sketch9.addConstraint(Sketcher.Constraint("Vertical", 7, 3, 8, 3))
sketch9.addConstraint(Sketcher.Constraint("Vertical", 2, 3, 9, 3))
sketch9.addConstraint(Sketcher.Constraint("Vertical", 1, 3, 10, 3))
sketch9.addConstraint(Sketcher.Constraint("Vertical", 0, 3, 11, 3))
sketch9.addConstraint(Sketcher.Constraint("Diameter", 0, 2.4))
sketch9.addConstraint(Sketcher.Constraint("DistanceX", -1, 1, 1, 3, 22.0))
sketch9.addConstraint(Sketcher.Constraint("DistanceX", 0, 3, 2, 3, 9.0))
sketch9.addConstraint(Sketcher.Constraint("DistanceX", 2, 3, 3, 3, 13.0))
sketch9.addConstraint(Sketcher.Constraint("DistanceY", 3, 3, 2, 3, 13.0))
sketch9.addConstraint(Sketcher.Constraint("DistanceY", 5, 3, 3, 3, 9.0))
sketch9.addConstraint(Sketcher.Constraint("DistanceX", 6, 3, 0, 3, 13.0))
sketch9.addConstraint(Sketcher.Constraint("DistanceY", 9, 3, 5, 3, 13.0))
sketch9.addConstraint(Sketcher.Constraint("DistanceX", -1, 1, 0, 3, 17.5))
sketch9.addConstraint(Sketcher.Constraint("DistanceY", 4, 3, 3, 3, 4.5))
sketch9.addConstraint(Sketcher.Constraint("DistanceY", 0, 3, -1, 1, 3.47))
sketch9.setExpression("Constraints[25]", "Params.sketch9_diameter")
doc.recompute()
hole4 = body.newObject("PartDesign::Hole", "Hole003")
hole4.Profile = sketch9
hole4.ThreadType = "None"
hole4.setExpression("Diameter", "Params.hole4_diameter")
hole4.DepthType = "ThroughAll"
hole4.HoleCutType = "Countersink"
hole4.setExpression("HoleCutDiameter", "Params.hole4_csink_diameter")
hole4.HoleCutCountersinkAngle = 90

# Sketch on XZ plane
sketch10 = body.newObject("Sketcher::SketchObject", "Sketch009")
sketch10.AttachmentSupport = (doc.getObject("XZ_Plane"), [""])
sketch10.MapMode = "FlatFace"
sketch10.AttachmentOffset = App.Placement(V(0, 0, -10), App.Rotation())
sketch10.addGeometry(Part.Circle(V(58.75, -8, 0), V(0, 0, 1), 2.75), False)
sketch10.addGeometry(Part.Circle(V(96.75, -8, 0), V(0, 0, 1), 2.75), False)
sketch10.addGeometry(Part.Circle(V(134.75, -8, 0), V(0, 0, 1), 2.75), False)
sketch10.addGeometry(Part.Circle(V(134.75, -252, 0), V(0, 0, 1), 2.75), False)
sketch10.addGeometry(Part.Circle(V(96.75, -252, 0), V(0, 0, 1), 2.75), False)
sketch10.addGeometry(Part.Circle(V(58.75, -252, 0), V(0, 0, 1), 2.75), False)
sketch10.addConstraint(Sketcher.Constraint("Equal", 0, 1))
sketch10.addConstraint(Sketcher.Constraint("Equal", 1, 2))
sketch10.addConstraint(Sketcher.Constraint("Equal", 2, 3))
sketch10.addConstraint(Sketcher.Constraint("Equal", 3, 4))
sketch10.addConstraint(Sketcher.Constraint("Equal", 4, 5))
sketch10.addConstraint(Sketcher.Constraint("Horizontal", 0, 3, 1, 3))
sketch10.addConstraint(Sketcher.Constraint("Horizontal", 1, 3, 2, 3))
sketch10.addConstraint(Sketcher.Constraint("Horizontal", 3, 3, 4, 3))
sketch10.addConstraint(Sketcher.Constraint("Horizontal", 4, 3, 5, 3))
sketch10.addConstraint(Sketcher.Constraint("Vertical", 2, 3, 3, 3))
sketch10.addConstraint(Sketcher.Constraint("Vertical", 1, 3, 4, 3))
sketch10.addConstraint(Sketcher.Constraint("Vertical", 0, 3, 5, 3))
sketch10.addConstraint(Sketcher.Constraint("Diameter", 0, 5.5))
sketch10.addConstraint(Sketcher.Constraint("DistanceY", 0, 3, -1, 1, 8.0))
sketch10.addConstraint(Sketcher.Constraint("DistanceY", 3, 3, -1, 1, 252.0))
sketch10.addConstraint(Sketcher.Constraint("DistanceX", 0, 3, 1, 3, 38.0))
sketch10.addConstraint(Sketcher.Constraint("DistanceX", 1, 3, 2, 3, 38.0))
sketch10.addConstraint(Sketcher.Constraint("DistanceX", -1, 1, 0, 3, 58.75))
sketch10.setExpression("Constraints[12]", "Params.sketch10_diameter")
doc.recompute()
hole5 = body.newObject("PartDesign::Hole", "Hole004")
hole5.Profile = sketch10
hole5.ThreadType = "None"
hole5.setExpression("Diameter", "Params.hole5_diameter")
hole5.DepthType = "ThroughAll"
hole5.Reversed = True

doc.recompute()
